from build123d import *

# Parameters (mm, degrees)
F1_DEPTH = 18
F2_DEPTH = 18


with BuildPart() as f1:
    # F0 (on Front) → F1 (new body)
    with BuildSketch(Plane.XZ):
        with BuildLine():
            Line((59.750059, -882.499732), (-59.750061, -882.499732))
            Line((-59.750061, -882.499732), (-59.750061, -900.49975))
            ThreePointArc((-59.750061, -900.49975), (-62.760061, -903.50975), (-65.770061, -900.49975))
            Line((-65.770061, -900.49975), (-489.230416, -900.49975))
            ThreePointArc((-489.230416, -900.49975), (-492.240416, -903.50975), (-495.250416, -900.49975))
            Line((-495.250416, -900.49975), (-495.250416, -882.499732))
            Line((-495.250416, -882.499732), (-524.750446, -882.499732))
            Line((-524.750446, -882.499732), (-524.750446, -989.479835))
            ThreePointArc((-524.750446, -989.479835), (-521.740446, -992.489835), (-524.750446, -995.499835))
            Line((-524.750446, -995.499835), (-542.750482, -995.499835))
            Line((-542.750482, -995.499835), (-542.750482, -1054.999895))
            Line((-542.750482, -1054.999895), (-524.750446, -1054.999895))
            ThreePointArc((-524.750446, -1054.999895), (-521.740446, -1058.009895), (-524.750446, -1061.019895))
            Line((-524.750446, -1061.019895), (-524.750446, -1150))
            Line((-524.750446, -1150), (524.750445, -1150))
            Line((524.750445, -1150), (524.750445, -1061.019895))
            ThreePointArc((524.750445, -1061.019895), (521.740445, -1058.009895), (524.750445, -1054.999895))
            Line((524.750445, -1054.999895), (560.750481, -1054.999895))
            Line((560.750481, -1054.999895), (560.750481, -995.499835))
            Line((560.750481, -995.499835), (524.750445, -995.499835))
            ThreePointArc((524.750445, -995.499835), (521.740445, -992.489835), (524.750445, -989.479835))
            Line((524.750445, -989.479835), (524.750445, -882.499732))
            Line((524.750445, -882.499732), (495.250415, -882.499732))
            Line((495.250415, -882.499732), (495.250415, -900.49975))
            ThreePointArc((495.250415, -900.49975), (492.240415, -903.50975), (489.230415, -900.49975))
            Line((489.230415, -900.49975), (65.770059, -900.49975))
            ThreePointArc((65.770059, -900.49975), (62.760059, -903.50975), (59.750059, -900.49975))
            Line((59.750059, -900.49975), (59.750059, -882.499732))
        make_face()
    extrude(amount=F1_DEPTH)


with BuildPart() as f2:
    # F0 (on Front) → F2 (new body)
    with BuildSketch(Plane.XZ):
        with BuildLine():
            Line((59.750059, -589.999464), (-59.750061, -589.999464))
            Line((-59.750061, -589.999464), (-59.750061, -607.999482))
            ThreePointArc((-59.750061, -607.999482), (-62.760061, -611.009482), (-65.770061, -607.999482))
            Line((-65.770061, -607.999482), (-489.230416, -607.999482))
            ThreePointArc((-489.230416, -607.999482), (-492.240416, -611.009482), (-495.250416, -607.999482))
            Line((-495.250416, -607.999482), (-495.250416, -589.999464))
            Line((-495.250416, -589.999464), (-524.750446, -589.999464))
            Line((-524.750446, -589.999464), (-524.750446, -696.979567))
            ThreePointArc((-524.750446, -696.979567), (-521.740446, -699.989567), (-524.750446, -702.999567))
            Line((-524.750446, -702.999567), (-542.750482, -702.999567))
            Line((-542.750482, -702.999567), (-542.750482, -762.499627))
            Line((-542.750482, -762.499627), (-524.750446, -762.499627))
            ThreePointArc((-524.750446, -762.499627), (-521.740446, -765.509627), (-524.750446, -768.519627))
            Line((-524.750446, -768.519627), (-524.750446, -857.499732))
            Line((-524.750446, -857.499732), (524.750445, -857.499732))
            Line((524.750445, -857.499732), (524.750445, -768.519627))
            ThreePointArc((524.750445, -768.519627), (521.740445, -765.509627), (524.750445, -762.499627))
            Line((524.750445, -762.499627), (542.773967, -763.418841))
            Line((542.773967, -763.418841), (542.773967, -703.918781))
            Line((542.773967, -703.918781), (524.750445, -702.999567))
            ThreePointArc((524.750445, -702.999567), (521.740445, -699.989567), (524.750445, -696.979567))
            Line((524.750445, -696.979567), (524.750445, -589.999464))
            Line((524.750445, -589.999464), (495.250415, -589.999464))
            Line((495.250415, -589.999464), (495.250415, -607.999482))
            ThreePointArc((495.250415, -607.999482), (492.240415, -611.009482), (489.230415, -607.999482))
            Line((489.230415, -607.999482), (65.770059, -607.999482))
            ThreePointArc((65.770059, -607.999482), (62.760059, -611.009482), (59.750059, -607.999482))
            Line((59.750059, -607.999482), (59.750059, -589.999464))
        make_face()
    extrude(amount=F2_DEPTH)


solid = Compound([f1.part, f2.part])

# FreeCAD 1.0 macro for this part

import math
import FreeCAD as App
import Part
import Sketcher

doc = App.newDocument("Part")
body = doc.addObject("PartDesign::Body", "Body")

# Sketch on XZ plane
sketch1 = doc.addObject("Sketcher::SketchObject", "Sketch")
body.addObject(sketch1)
sketch1.AttachmentSupport = (doc.XZ_Plane, [""])
sketch1.MapMode = "FlatFace"
sketch1.addGeometry([
    Part.LineSegment(App.Vector(59.8, -882.5, 0), App.Vector(-59.8, -882.5, 0)),  # 0
    Part.LineSegment(App.Vector(-59.8, -882.5, 0), App.Vector(-59.8, -900.5, 0)),  # 1
    Part.ArcOfCircle(Part.Circle(App.Vector(-62.8, -900.5, 0), App.Vector(0, 0, 1), 3), math.radians(180), math.radians(360)),  # 2
    Part.LineSegment(App.Vector(-65.8, -900.5, 0), App.Vector(-489.2, -900.5, 0)),  # 3
    Part.ArcOfCircle(Part.Circle(App.Vector(-492.2, -900.5, 0), App.Vector(0, 0, 1), 3), math.radians(180), math.radians(360)),  # 4
    Part.LineSegment(App.Vector(-495.3, -900.5, 0), App.Vector(-495.3, -882.5, 0)),  # 5
    Part.LineSegment(App.Vector(-495.3, -882.5, 0), App.Vector(-524.8, -882.5, 0)),  # 6
    Part.LineSegment(App.Vector(-524.8, -882.5, 0), App.Vector(-524.8, -989.5, 0)),  # 7
    Part.ArcOfCircle(Part.Circle(App.Vector(-524.8, -992.5, 0), App.Vector(0, 0, 1), 3), math.radians(-90), math.radians(90)),  # 8
    Part.LineSegment(App.Vector(-524.8, -995.5, 0), App.Vector(-542.8, -995.5, 0)),  # 9
    Part.LineSegment(App.Vector(-542.8, -995.5, 0), App.Vector(-542.8, -1055, 0)),  # 10
    Part.LineSegment(App.Vector(-542.8, -1055, 0), App.Vector(-524.8, -1055, 0)),  # 11
    Part.ArcOfCircle(Part.Circle(App.Vector(-524.8, -1058, 0), App.Vector(0, 0, 1), 3), math.radians(-90), math.radians(90)),  # 12
    Part.LineSegment(App.Vector(-524.8, -1061, 0), App.Vector(-524.8, -1150, 0)),  # 13
    Part.LineSegment(App.Vector(-524.8, -1150, 0), App.Vector(524.8, -1150, 0)),  # 14
    Part.LineSegment(App.Vector(524.8, -1150, 0), App.Vector(524.8, -1061, 0)),  # 15
    Part.ArcOfCircle(Part.Circle(App.Vector(524.8, -1058, 0), App.Vector(0, 0, 1), 3), math.radians(90), math.radians(270)),  # 16
    Part.LineSegment(App.Vector(524.8, -1055, 0), App.Vector(560.8, -1055, 0)),  # 17
    Part.LineSegment(App.Vector(560.8, -1055, 0), App.Vector(560.8, -995.5, 0)),  # 18
    Part.LineSegment(App.Vector(560.8, -995.5, 0), App.Vector(524.8, -995.5, 0)),  # 19
    Part.ArcOfCircle(Part.Circle(App.Vector(524.8, -992.5, 0), App.Vector(0, 0, 1), 3), math.radians(90), math.radians(270)),  # 20
    Part.LineSegment(App.Vector(524.8, -989.5, 0), App.Vector(524.8, -882.5, 0)),  # 21
    Part.LineSegment(App.Vector(524.8, -882.5, 0), App.Vector(495.3, -882.5, 0)),  # 22
    Part.LineSegment(App.Vector(495.3, -882.5, 0), App.Vector(495.3, -900.5, 0)),  # 23
    Part.ArcOfCircle(Part.Circle(App.Vector(492.2, -900.5, 0), App.Vector(0, 0, 1), 3), math.radians(180), math.radians(360)),  # 24
    Part.LineSegment(App.Vector(489.2, -900.5, 0), App.Vector(65.8, -900.5, 0)),  # 25
    Part.ArcOfCircle(Part.Circle(App.Vector(62.8, -900.5, 0), App.Vector(0, 0, 1), 3), math.radians(180), math.radians(360)),  # 26
    Part.LineSegment(App.Vector(59.8, -900.5, 0), App.Vector(59.8, -882.5, 0)),  # 27
], False)
sketch1.addConstraint([
    Sketcher.Constraint("Coincident", 0, 2, 1, 1),
    Sketcher.Constraint("Tangent", 1, 2, 2, 2),
    Sketcher.Constraint("Coincident", 2, 1, 3, 1),
    Sketcher.Constraint("Coincident", 3, 2, 4, 2),
    Sketcher.Constraint("Tangent", 4, 1, 5, 1),
    Sketcher.Constraint("Coincident", 5, 2, 6, 1),
    Sketcher.Constraint("Coincident", 6, 2, 7, 1),
    Sketcher.Constraint("Coincident", 7, 2, 8, 2),
    Sketcher.Constraint("Tangent", 8, 1, 9, 1),
    Sketcher.Constraint("Coincident", 9, 2, 10, 1),
    Sketcher.Constraint("Coincident", 10, 2, 11, 1),
    Sketcher.Constraint("Tangent", 11, 2, 12, 2),
    Sketcher.Constraint("Coincident", 12, 1, 13, 1),
    Sketcher.Constraint("Coincident", 13, 2, 14, 1),
    Sketcher.Constraint("Coincident", 14, 2, 15, 1),
    Sketcher.Constraint("Coincident", 15, 2, 16, 2),
    Sketcher.Constraint("Tangent", 16, 1, 17, 1),
    Sketcher.Constraint("Coincident", 17, 2, 18, 1),
    Sketcher.Constraint("Coincident", 18, 2, 19, 1),
    Sketcher.Constraint("Tangent", 19, 2, 20, 2),
    Sketcher.Constraint("Coincident", 20, 1, 21, 1),
    Sketcher.Constraint("Coincident", 21, 2, 22, 1),
    Sketcher.Constraint("Coincident", 22, 2, 23, 1),
    Sketcher.Constraint("Tangent", 23, 2, 24, 2),
    Sketcher.Constraint("Coincident", 24, 1, 25, 1),
    Sketcher.Constraint("Coincident", 25, 2, 26, 2),
    Sketcher.Constraint("Tangent", 26, 1, 27, 1),
    Sketcher.Constraint("Coincident", 27, 2, 0, 1),
    Sketcher.Constraint("Horizontal", 0),
    Sketcher.Constraint("Vertical", 1),
    Sketcher.Constraint("Horizontal", 3),
    Sketcher.Constraint("Vertical", 5),
    Sketcher.Constraint("Horizontal", 6),
    Sketcher.Constraint("Vertical", 7),
    Sketcher.Constraint("Horizontal", 9),
    Sketcher.Constraint("Vertical", 10),
    Sketcher.Constraint("Horizontal", 11),
    Sketcher.Constraint("Vertical", 13),
    Sketcher.Constraint("Horizontal", 14),
    Sketcher.Constraint("Vertical", 15),
    Sketcher.Constraint("Horizontal", 17),
    Sketcher.Constraint("Vertical", 18),
    Sketcher.Constraint("Horizontal", 19),
    Sketcher.Constraint("Vertical", 21),
    Sketcher.Constraint("Horizontal", 22),
    Sketcher.Constraint("Vertical", 23),
    Sketcher.Constraint("Horizontal", 25),
    Sketcher.Constraint("Vertical", 27),
    Sketcher.Constraint("Equal", 2, 4),
    Sketcher.Constraint("Equal", 4, 8),
    Sketcher.Constraint("Equal", 8, 12),
    Sketcher.Constraint("Equal", 12, 16),
    Sketcher.Constraint("Equal", 16, 20),
    Sketcher.Constraint("Equal", 20, 24),
    Sketcher.Constraint("Equal", 24, 26),
    Sketcher.Constraint("Symmetric", 12, 3, 16, 3, -2),
    Sketcher.Constraint("Symmetric", 8, 3, 20, 3, -2),
    Sketcher.Constraint("Symmetric", 4, 3, 24, 3, -2),
    Sketcher.Constraint("Symmetric", 2, 3, 26, 3, -2),
    Sketcher.Constraint("Symmetric", 6, 2, 21, 2, -2),
    Sketcher.Constraint("Horizontal", 2, 3, 4, 3),
    Sketcher.Constraint("Horizontal", 1, 2, 2, 1),
    Sketcher.Constraint("Horizontal", 0, 2, 5, 2),
    Sketcher.Constraint("Horizontal", 23, 2, 24, 1),
    Sketcher.Constraint("Vertical", 8, 3, 12, 3),
    Sketcher.Constraint("Vertical", 12, 3, 6, 2),
    Sketcher.Constraint("Vertical", 11, 2, 12, 1),
    Sketcher.Constraint("Vertical", 20, 3, 14, 2),
    Sketcher.Constraint("Radius", 2, 3.01),
    Sketcher.Constraint("DistanceY", 13, 2, -1, 1, 1150.0),
    Sketcher.Constraint("DistanceX", 0, 2, 0, 1, 119.50012),
    Sketcher.Constraint("DistanceX", 6, 2, 6, 1, 29.50003),
    Sketcher.Constraint("DistanceX", 14, 1, 14, 2, 1049.500891),
    Sketcher.Constraint("DistanceY", 10, 2, 10, 1, 59.50006),
    Sketcher.Constraint("DistanceX", 9, 2, 9, 1, 18.000036),
    Sketcher.Constraint("DistanceX", 17, 1, 17, 2, 36.000036),
    Sketcher.Constraint("DistanceY", 1, 2, 1, 1, 18.000018),
    Sketcher.Constraint("DistanceY", 7, 2, 7, 1, 106.980103),
    Sketcher.Constraint("DistanceY", 13, 2, 13, 1, 88.980105),
])
pad1 = doc.addObject("PartDesign::Pad", "Pad")
body.addObject(pad1)
pad1.Profile = sketch1
pad1.Length = 18
body2 = doc.addObject("PartDesign::Body", "Body001")

# Sketch on XZ plane
sketch2 = doc.addObject("Sketcher::SketchObject", "Sketch001")
body2.addObject(sketch2)
sketch2.AttachmentSupport = (doc.getObject("XZ_Plane001"), [""])
sketch2.MapMode = "FlatFace"
sketch2.addGeometry([
    Part.LineSegment(App.Vector(59.8, -590, 0), App.Vector(-59.8, -590, 0)),  # 0
    Part.LineSegment(App.Vector(-59.8, -590, 0), App.Vector(-59.8, -608, 0)),  # 1
    Part.ArcOfCircle(Part.Circle(App.Vector(-62.8, -608, 0), App.Vector(0, 0, 1), 3), math.radians(180), math.radians(360)),  # 2
    Part.LineSegment(App.Vector(-65.8, -608, 0), App.Vector(-489.2, -608, 0)),  # 3
    Part.ArcOfCircle(Part.Circle(App.Vector(-492.2, -608, 0), App.Vector(0, 0, 1), 3), math.radians(180), math.radians(360)),  # 4
    Part.LineSegment(App.Vector(-495.3, -608, 0), App.Vector(-495.3, -590, 0)),  # 5
    Part.LineSegment(App.Vector(-495.3, -590, 0), App.Vector(-524.8, -590, 0)),  # 6
    Part.LineSegment(App.Vector(-524.8, -590, 0), App.Vector(-524.8, -697, 0)),  # 7
    Part.ArcOfCircle(Part.Circle(App.Vector(-524.8, -700, 0), App.Vector(0, 0, 1), 3), math.radians(-90), math.radians(90)),  # 8
    Part.LineSegment(App.Vector(-524.8, -703, 0), App.Vector(-542.8, -703, 0)),  # 9
    Part.LineSegment(App.Vector(-542.8, -703, 0), App.Vector(-542.8, -762.5, 0)),  # 10
    Part.LineSegment(App.Vector(-542.8, -762.5, 0), App.Vector(-524.8, -762.5, 0)),  # 11
    Part.ArcOfCircle(Part.Circle(App.Vector(-524.8, -765.5, 0), App.Vector(0, 0, 1), 3), math.radians(-90), math.radians(90)),  # 12
    Part.LineSegment(App.Vector(-524.8, -768.5, 0), App.Vector(-524.8, -857.5, 0)),  # 13
    Part.LineSegment(App.Vector(-524.8, -857.5, 0), App.Vector(524.8, -857.5, 0)),  # 14
    Part.LineSegment(App.Vector(524.8, -857.5, 0), App.Vector(524.8, -768.5, 0)),  # 15
    Part.ArcOfCircle(Part.Circle(App.Vector(524.8, -765.5, 0), App.Vector(0, 0, 1), 3), math.radians(90), math.radians(270)),  # 16
    Part.LineSegment(App.Vector(524.8, -762.5, 0), App.Vector(542.8, -763.4, 0)),  # 17
    Part.LineSegment(App.Vector(542.8, -763.4, 0), App.Vector(542.8, -703.9, 0)),  # 18
    Part.LineSegment(App.Vector(542.8, -703.9, 0), App.Vector(524.8, -703, 0)),  # 19
    Part.ArcOfCircle(Part.Circle(App.Vector(524.8, -700, 0), App.Vector(0, 0, 1), 3), math.radians(90), math.radians(270)),  # 20
    Part.LineSegment(App.Vector(524.8, -697, 0), App.Vector(524.8, -590, 0)),  # 21
    Part.LineSegment(App.Vector(524.8, -590, 0), App.Vector(495.3, -590, 0)),  # 22
    Part.LineSegment(App.Vector(495.3, -590, 0), App.Vector(495.3, -608, 0)),  # 23
    Part.ArcOfCircle(Part.Circle(App.Vector(492.2, -608, 0), App.Vector(0, 0, 1), 3), math.radians(180), math.radians(360)),  # 24
    Part.LineSegment(App.Vector(489.2, -608, 0), App.Vector(65.8, -608, 0)),  # 25
    Part.ArcOfCircle(Part.Circle(App.Vector(62.8, -608, 0), App.Vector(0, 0, 1), 3), math.radians(180), math.radians(360)),  # 26
    Part.LineSegment(App.Vector(59.8, -608, 0), App.Vector(59.8, -590, 0)),  # 27
], False)
sketch2.addConstraint([
    Sketcher.Constraint("Coincident", 0, 2, 1, 1),
    Sketcher.Constraint("Tangent", 1, 2, 2, 2),
    Sketcher.Constraint("Coincident", 2, 1, 3, 1),
    Sketcher.Constraint("Coincident", 3, 2, 4, 2),
    Sketcher.Constraint("Tangent", 4, 1, 5, 1),
    Sketcher.Constraint("Coincident", 5, 2, 6, 1),
    Sketcher.Constraint("Coincident", 6, 2, 7, 1),
    Sketcher.Constraint("Coincident", 7, 2, 8, 2),
    Sketcher.Constraint("Tangent", 8, 1, 9, 1),
    Sketcher.Constraint("Coincident", 9, 2, 10, 1),
    Sketcher.Constraint("Coincident", 10, 2, 11, 1),
    Sketcher.Constraint("Tangent", 11, 2, 12, 2),
    Sketcher.Constraint("Coincident", 12, 1, 13, 1),
    Sketcher.Constraint("Coincident", 13, 2, 14, 1),
    Sketcher.Constraint("Coincident", 14, 2, 15, 1),
    Sketcher.Constraint("Coincident", 15, 2, 16, 2),
    Sketcher.Constraint("Coincident", 16, 1, 17, 1),
    Sketcher.Constraint("Coincident", 17, 2, 18, 1),
    Sketcher.Constraint("Coincident", 18, 2, 19, 1),
    Sketcher.Constraint("Coincident", 19, 2, 20, 2),
    Sketcher.Constraint("Coincident", 20, 1, 21, 1),
    Sketcher.Constraint("Coincident", 21, 2, 22, 1),
    Sketcher.Constraint("Coincident", 22, 2, 23, 1),
    Sketcher.Constraint("Tangent", 23, 2, 24, 2),
    Sketcher.Constraint("Coincident", 24, 1, 25, 1),
    Sketcher.Constraint("Coincident", 25, 2, 26, 2),
    Sketcher.Constraint("Tangent", 26, 1, 27, 1),
    Sketcher.Constraint("Coincident", 27, 2, 0, 1),
    Sketcher.Constraint("Horizontal", 0),
    Sketcher.Constraint("Vertical", 1),
    Sketcher.Constraint("Horizontal", 3),
    Sketcher.Constraint("Vertical", 5),
    Sketcher.Constraint("Horizontal", 6),
    Sketcher.Constraint("Vertical", 7),
    Sketcher.Constraint("Horizontal", 9),
    Sketcher.Constraint("Vertical", 10),
    Sketcher.Constraint("Horizontal", 11),
    Sketcher.Constraint("Vertical", 13),
    Sketcher.Constraint("Horizontal", 14),
    Sketcher.Constraint("Vertical", 15),
    Sketcher.Constraint("Vertical", 18),
    Sketcher.Constraint("Vertical", 21),
    Sketcher.Constraint("Horizontal", 22),
    Sketcher.Constraint("Vertical", 23),
    Sketcher.Constraint("Horizontal", 25),
    Sketcher.Constraint("Vertical", 27),
    Sketcher.Constraint("Equal", 2, 4),
    Sketcher.Constraint("Equal", 4, 8),
    Sketcher.Constraint("Equal", 8, 12),
    Sketcher.Constraint("Equal", 12, 16),
    Sketcher.Constraint("Equal", 16, 20),
    Sketcher.Constraint("Equal", 20, 24),
    Sketcher.Constraint("Equal", 24, 26),
    Sketcher.Constraint("Symmetric", 12, 3, 16, 3, -2),
    Sketcher.Constraint("Symmetric", 8, 3, 20, 3, -2),
    Sketcher.Constraint("Symmetric", 4, 3, 24, 3, -2),
    Sketcher.Constraint("Symmetric", 2, 3, 26, 3, -2),
    Sketcher.Constraint("Symmetric", 6, 2, 21, 2, -2),
    Sketcher.Constraint("Parallel", 17, 19),
    Sketcher.Constraint("Horizontal", 2, 3, 4, 3),
    Sketcher.Constraint("Horizontal", 1, 2, 2, 1),
    Sketcher.Constraint("Horizontal", 0, 2, 5, 2),
    Sketcher.Constraint("Horizontal", 23, 2, 24, 1),
    Sketcher.Constraint("Vertical", 8, 3, 12, 3),
    Sketcher.Constraint("Vertical", 12, 3, 6, 2),
    Sketcher.Constraint("Vertical", 11, 2, 12, 1),
    Sketcher.Constraint("Vertical", 20, 3, 14, 2),
    Sketcher.Constraint("Vertical", 15, 2, 16, 1),
    Sketcher.Constraint("Vertical", 16, 1, 19, 2),
    Sketcher.Constraint("Radius", 2, 3.01),
    Sketcher.Constraint("DistanceX", 0, 2, 0, 1, 119.50012),
    Sketcher.Constraint("DistanceX", 6, 2, 6, 1, 29.50003),
    Sketcher.Constraint("DistanceX", 14, 1, 14, 2, 1049.500891),
    Sketcher.Constraint("DistanceY", 10, 2, 10, 1, 59.50006),
    Sketcher.Constraint("DistanceX", 9, 2, 9, 1, 18.000036),
    Sketcher.Constraint("DistanceY", 1, 2, 1, 1, 18.000018),
    Sketcher.Constraint("DistanceY", 7, 2, 7, 1, 106.980103),
    Sketcher.Constraint("DistanceY", 13, 2, 13, 1, 88.980105),
    Sketcher.Constraint("DistanceY", 2, 3, -1, 1, 607.999482),
    Sketcher.Constraint("DistanceY", 17, 2, -1, 1, 763.418841),
    Sketcher.Constraint("DistanceX", 16, 1, 17, 2, 18.023522),
])
pad2 = doc.addObject("PartDesign::Pad", "Pad001")
body2.addObject(pad2)
pad2.Profile = sketch2
pad2.Length = 18

doc.recompute()
